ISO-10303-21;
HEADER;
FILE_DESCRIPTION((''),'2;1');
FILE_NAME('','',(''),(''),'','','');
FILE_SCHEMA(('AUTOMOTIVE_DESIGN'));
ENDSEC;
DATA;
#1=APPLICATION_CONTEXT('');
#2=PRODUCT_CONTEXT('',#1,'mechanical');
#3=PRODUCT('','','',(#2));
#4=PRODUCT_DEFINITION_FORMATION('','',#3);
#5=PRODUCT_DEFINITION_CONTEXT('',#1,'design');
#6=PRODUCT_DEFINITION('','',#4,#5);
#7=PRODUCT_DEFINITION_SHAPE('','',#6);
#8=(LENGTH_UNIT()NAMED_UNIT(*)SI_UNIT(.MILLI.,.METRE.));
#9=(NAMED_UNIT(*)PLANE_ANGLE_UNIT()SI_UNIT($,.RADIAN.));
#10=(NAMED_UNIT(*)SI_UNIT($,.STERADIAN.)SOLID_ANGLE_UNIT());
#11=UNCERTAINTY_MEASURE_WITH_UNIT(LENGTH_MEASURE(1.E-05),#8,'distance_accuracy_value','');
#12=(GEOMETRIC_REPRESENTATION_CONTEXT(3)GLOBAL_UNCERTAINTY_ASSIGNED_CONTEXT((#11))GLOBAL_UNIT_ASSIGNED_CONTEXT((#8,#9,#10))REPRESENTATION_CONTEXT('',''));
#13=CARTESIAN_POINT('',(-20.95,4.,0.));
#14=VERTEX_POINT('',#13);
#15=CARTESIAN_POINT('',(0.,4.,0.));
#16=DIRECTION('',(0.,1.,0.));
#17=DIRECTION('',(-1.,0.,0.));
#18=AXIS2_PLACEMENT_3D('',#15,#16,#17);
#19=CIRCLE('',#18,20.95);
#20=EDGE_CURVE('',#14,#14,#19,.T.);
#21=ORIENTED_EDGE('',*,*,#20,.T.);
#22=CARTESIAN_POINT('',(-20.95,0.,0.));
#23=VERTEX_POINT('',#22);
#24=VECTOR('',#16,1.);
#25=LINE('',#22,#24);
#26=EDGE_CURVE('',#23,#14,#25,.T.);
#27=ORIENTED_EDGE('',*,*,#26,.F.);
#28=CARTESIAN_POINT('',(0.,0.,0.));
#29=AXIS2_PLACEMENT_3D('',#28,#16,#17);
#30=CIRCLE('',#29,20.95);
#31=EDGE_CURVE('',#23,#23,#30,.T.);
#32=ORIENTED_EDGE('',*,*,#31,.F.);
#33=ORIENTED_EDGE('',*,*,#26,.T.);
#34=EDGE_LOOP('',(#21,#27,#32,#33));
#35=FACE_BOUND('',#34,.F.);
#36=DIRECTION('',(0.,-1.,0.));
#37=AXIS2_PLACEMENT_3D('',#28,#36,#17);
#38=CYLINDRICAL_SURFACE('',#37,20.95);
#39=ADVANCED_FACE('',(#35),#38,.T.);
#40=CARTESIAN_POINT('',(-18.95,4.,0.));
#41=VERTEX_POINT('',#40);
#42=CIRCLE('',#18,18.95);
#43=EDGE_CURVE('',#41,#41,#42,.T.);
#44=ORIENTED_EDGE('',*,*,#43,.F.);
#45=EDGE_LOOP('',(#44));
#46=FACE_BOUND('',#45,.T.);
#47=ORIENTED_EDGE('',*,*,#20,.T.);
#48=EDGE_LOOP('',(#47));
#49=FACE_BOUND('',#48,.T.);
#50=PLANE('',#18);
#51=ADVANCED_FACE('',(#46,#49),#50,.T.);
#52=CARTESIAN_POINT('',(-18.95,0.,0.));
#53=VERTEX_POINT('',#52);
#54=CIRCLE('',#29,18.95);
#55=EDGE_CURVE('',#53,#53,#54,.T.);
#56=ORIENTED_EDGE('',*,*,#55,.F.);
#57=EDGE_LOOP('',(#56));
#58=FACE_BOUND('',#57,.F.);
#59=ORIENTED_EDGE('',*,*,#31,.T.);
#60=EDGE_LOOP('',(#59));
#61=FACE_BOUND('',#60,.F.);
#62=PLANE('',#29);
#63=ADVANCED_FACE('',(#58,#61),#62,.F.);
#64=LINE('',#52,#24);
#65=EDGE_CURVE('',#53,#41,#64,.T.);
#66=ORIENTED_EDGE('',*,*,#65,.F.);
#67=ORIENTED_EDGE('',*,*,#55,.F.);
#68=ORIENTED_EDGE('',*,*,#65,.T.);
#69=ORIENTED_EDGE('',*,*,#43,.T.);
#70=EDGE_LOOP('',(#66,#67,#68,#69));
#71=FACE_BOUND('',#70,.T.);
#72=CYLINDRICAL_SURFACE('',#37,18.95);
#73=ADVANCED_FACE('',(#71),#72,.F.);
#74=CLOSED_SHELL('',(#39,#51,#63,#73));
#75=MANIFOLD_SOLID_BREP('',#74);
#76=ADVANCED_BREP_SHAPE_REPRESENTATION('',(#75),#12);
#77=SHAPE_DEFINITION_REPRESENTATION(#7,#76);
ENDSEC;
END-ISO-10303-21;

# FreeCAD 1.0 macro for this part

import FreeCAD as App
import Part
import Sketcher

doc = App.newDocument("Part")
body = doc.addObject("PartDesign::Body", "Body")

sketch1 = doc.addObject("Sketcher::SketchObject", "Sketch")
body.addObject(sketch1)
sketch1.AttachmentSupport = (doc.XZ_Plane, [""])
sketch1.MapMode = "FlatFace"
sketch1.addGeometry([
    Part.Circle(App.Vector(0, 0, 0), App.Vector(0, 0, 1), 20.95),
    Part.Circle(App.Vector(0, 0, 0), App.Vector(0, 0, 1), 18.95),
], False)
sketch1.addConstraint([
    Sketcher.Constraint("Coincident", 0, 3, -1, 1),
    Sketcher.Constraint("Coincident", 1, 3, -1, 1),
    Sketcher.Constraint("Diameter", 0, 41.9),
    Sketcher.Constraint("Diameter", 1, 37.9),
])
pad1 = doc.addObject("PartDesign::Pad", "Pad")
body.addObject(pad1)
pad1.Profile = sketch1
pad1.Length = 4
pad1.Reversed = True

doc.recompute()
